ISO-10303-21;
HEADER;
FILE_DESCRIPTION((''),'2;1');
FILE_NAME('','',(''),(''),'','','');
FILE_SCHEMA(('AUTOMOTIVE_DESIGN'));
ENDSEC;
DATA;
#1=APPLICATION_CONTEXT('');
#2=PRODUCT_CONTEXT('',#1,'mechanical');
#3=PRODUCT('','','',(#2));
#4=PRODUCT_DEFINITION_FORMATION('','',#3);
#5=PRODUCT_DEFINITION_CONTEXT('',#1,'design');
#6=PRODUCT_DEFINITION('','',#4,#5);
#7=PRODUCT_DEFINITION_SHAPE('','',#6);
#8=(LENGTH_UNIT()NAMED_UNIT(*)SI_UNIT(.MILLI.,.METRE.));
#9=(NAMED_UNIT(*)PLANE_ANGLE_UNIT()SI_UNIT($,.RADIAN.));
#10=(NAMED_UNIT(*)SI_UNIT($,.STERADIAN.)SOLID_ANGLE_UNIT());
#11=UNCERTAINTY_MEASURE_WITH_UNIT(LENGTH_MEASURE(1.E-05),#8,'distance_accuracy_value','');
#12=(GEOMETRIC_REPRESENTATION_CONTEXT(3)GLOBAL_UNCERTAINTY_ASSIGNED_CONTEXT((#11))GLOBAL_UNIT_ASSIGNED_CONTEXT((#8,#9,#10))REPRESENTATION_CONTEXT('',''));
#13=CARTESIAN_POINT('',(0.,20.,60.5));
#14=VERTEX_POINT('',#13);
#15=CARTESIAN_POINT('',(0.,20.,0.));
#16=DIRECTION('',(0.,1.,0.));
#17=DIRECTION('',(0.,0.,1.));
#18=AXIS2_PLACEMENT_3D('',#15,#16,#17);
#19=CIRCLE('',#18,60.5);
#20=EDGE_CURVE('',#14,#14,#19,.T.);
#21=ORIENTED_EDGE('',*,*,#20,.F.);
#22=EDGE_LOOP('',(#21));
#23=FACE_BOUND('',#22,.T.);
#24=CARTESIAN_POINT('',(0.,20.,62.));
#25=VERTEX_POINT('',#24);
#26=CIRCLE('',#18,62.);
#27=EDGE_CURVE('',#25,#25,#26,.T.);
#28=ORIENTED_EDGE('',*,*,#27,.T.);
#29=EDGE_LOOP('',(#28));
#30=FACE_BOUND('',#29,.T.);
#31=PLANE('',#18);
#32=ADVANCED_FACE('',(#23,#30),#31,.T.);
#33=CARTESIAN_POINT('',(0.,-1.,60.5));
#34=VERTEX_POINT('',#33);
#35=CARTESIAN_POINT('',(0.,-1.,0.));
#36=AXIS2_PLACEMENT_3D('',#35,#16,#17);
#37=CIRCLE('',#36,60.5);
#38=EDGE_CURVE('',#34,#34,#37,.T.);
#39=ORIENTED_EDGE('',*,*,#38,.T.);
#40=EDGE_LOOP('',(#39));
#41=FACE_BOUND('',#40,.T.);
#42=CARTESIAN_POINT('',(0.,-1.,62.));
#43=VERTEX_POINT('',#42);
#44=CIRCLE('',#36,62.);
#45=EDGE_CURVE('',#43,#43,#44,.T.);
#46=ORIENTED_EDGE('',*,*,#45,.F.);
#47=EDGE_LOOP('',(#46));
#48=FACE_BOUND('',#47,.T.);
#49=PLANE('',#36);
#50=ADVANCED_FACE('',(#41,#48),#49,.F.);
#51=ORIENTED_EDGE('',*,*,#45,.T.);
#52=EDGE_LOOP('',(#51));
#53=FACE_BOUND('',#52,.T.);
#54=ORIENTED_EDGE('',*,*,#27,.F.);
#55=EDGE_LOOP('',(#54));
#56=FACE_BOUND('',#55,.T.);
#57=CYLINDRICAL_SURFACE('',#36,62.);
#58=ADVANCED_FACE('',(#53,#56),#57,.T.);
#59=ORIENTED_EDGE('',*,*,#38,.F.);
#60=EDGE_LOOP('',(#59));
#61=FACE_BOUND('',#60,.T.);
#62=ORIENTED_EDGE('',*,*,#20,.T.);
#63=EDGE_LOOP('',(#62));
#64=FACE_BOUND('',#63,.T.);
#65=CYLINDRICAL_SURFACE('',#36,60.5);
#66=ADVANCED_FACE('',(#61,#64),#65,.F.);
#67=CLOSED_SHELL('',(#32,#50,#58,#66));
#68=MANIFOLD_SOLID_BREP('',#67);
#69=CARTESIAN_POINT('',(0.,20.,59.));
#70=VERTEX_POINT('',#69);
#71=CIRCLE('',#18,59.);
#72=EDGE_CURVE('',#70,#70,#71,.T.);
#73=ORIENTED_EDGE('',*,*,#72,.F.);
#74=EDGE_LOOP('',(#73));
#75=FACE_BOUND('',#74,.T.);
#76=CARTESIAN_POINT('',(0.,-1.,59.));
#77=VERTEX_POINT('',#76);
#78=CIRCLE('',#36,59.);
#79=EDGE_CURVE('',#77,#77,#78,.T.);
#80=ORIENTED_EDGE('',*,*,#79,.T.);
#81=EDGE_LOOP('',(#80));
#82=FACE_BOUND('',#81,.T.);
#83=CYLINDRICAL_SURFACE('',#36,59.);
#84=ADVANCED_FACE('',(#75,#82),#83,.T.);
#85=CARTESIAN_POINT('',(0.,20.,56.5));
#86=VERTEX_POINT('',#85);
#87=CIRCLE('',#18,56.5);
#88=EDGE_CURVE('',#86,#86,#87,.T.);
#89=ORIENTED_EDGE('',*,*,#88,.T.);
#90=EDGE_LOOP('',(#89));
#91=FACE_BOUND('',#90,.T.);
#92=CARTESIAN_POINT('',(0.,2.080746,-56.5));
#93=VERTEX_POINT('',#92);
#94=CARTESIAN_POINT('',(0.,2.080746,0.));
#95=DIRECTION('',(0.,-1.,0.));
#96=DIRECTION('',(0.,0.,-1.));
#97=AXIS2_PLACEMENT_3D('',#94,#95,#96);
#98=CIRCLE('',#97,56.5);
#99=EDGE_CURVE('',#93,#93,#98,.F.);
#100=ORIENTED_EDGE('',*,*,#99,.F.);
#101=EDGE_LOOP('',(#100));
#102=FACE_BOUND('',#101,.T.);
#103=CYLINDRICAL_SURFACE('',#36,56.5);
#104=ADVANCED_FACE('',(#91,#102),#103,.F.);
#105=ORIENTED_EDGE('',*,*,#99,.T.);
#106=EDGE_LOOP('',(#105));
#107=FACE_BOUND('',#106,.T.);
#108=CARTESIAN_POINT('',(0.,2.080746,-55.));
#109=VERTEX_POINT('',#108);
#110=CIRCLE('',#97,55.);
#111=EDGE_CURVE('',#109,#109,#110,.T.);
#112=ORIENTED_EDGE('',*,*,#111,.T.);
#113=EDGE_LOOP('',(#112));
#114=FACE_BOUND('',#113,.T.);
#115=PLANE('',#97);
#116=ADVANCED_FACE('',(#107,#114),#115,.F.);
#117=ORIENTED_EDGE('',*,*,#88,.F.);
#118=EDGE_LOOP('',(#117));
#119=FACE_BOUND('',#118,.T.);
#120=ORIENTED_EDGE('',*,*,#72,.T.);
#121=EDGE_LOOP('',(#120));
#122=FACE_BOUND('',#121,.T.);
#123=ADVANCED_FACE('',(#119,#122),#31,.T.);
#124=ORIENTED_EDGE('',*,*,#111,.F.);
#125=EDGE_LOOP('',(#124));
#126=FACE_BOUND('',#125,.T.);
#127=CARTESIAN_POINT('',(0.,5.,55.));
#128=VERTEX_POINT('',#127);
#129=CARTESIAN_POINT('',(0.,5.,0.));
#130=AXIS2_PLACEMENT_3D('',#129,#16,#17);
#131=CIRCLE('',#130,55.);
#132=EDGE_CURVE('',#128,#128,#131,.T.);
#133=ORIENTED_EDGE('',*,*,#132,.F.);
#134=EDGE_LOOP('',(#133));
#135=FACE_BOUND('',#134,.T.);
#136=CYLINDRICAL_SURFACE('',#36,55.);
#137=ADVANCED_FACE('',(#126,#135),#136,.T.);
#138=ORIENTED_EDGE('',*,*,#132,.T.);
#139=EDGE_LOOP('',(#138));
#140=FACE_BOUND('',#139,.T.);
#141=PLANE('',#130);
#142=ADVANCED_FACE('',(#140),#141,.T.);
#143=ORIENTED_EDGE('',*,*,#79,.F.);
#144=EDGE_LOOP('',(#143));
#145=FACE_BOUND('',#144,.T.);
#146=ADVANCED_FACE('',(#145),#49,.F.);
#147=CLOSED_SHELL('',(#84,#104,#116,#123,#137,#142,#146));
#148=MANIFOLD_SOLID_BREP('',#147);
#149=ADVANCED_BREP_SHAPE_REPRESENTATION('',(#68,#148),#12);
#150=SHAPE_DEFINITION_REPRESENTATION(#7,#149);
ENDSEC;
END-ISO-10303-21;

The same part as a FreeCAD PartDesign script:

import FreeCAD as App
import Part
import Sketcher
Q = App.Units.Quantity

doc = App.newDocument("Part")
body = doc.addObject("PartDesign::Body", "Body")

sketch1 = doc.addObject("Sketcher::SketchObject", "Sketch")
body.addObject(sketch1)
sketch1.AttachmentSupport = (doc.XZ_Plane, [""])
sketch1.MapMode = "FlatFace"
sketch1.addGeometry(Part.Circle(App.Vector(0, 0, 0), App.Vector(0, 0, 1), 55), False)
sketch1.addConstraint([
    Sketcher.Constraint("Coincident", 0, 3, -1, 1),
    Sketcher.Constraint("Diameter", 0, Q("110 mm")),
])
pad1 = doc.addObject("PartDesign::Pad", "Pad")
body.addObject(pad1)
pad1.Profile = sketch1
pad1.Type = "TwoLengths"
pad1.Length = 20
pad1.Length2 = 1
pad1.Reversed = True

sketch2 = doc.addObject("Sketcher::SketchObject", "Sketch001")
body.addObject(sketch2)
sketch2.AttachmentSupport = (doc.XZ_Plane, [""])
sketch2.MapMode = "FlatFace"
sketch2.AttachmentOffset = App.Placement(App.Vector(0, 0, -20), App.Rotation())
sketch2.addGeometry(Part.Circle(App.Vector(0, 0, 0), App.Vector(0, 0, 1), 55), False)
sketch2.addConstraint([
    Sketcher.Constraint("Coincident", 0, 3, -1, 1),
    Sketcher.Constraint("Diameter", 0, Q("110 mm")),
])
pocket1 = doc.addObject("PartDesign::Pocket", "Pocket")
body.addObject(pocket1)
pocket1.Profile = sketch2
pocket1.Length = 15
pocket1.Reversed = True
body2 = doc.addObject("PartDesign::Body", "Body001")

sketch3 = doc.addObject("Sketcher::SketchObject", "Sketch002")
body2.addObject(sketch3)
sketch3.AttachmentSupport = (doc.getObject("XZ_Plane001"), [""])
sketch3.MapMode = "FlatFace"
sketch3.addGeometry([
    Part.Circle(App.Vector(0, 0, 0), App.Vector(0, 0, 1), 59),
    Part.Circle(App.Vector(0, 0, 0), App.Vector(0, 0, 1), 56),
], False)
sketch3.addConstraint([
    Sketcher.Constraint("Coincident", 0, 3, -1, 1),
    Sketcher.Constraint("Coincident", 1, 3, -1, 1),
    Sketcher.Constraint("Diameter", 0, Q("118 mm")),
    Sketcher.Constraint("Diameter", 1, Q("113 mm")),
])
pad2 = doc.addObject("PartDesign::Pad", "Pad001")
body2.addObject(pad2)
pad2.Profile = sketch3
pad2.Type = "TwoLengths"
pad2.Length = 20
pad2.Length2 = 1
pad2.Reversed = True
body3 = doc.addObject("PartDesign::Body", "Body002")

sketch4 = doc.addObject("Sketcher::SketchObject", "Sketch003")
body3.addObject(sketch4)
sketch4.AttachmentSupport = (doc.getObject("XZ_Plane002"), [""])
sketch4.MapMode = "FlatFace"
sketch4.addGeometry([
    Part.Circle(App.Vector(0, 0, 0), App.Vector(0, 0, 1), 62),
    Part.Circle(App.Vector(0, 0, 0), App.Vector(0, 0, 1), 60),
], False)
sketch4.addConstraint([
    Sketcher.Constraint("Coincident", 0, 3, -1, 1),
    Sketcher.Constraint("Coincident", 1, 3, -1, 1),
    Sketcher.Constraint("Diameter", 0, Q("124 mm")),
    Sketcher.Constraint("Diameter", 1, Q("121 mm")),
])
pad3 = doc.addObject("PartDesign::Pad", "Pad002")
body3.addObject(pad3)
pad3.Profile = sketch4
pad3.Type = "TwoLengths"
pad3.Length = 20
pad3.Length2 = 1
pad3.Reversed = True
body.AllowCompound = True
doc.recompute()

boolean = doc.addObject("PartDesign::Boolean", "Boolean")
body.addObject(boolean)
boolean.Type = "Fuse"
boolean.addObjects([body2])

sketch5 = doc.addObject("Sketcher::SketchObject", "Sketch004")
body.addObject(sketch5)
sketch5.AttachmentSupport = (doc.XZ_Plane, [""])
sketch5.MapMode = "FlatFace"
sketch5.AttachmentOffset = App.Placement(App.Vector(0, 0, 1), App.Rotation())
sketch5.addGeometry([
    Part.Circle(App.Vector(0, 0, 0), App.Vector(0, 0, 1), 56),
    Part.Circle(App.Vector(0, 0, 0), App.Vector(0, 0, 1), 55),
], False)
sketch5.addConstraint([
    Sketcher.Constraint("Coincident", 0, 3, -1, 1),
    Sketcher.Constraint("Coincident", 1, 3, -1, 1),
    Sketcher.Constraint("Diameter", 0, Q("113 mm")),
    Sketcher.Constraint("Diameter", 1, Q("110 mm")),
])
pad4 = doc.addObject("PartDesign::Pad", "Pad003")
body.addObject(pad4)
pad4.Profile = sketch5
pad4.Length = 3.080746
pad4.Reversed = True

doc.recompute()
